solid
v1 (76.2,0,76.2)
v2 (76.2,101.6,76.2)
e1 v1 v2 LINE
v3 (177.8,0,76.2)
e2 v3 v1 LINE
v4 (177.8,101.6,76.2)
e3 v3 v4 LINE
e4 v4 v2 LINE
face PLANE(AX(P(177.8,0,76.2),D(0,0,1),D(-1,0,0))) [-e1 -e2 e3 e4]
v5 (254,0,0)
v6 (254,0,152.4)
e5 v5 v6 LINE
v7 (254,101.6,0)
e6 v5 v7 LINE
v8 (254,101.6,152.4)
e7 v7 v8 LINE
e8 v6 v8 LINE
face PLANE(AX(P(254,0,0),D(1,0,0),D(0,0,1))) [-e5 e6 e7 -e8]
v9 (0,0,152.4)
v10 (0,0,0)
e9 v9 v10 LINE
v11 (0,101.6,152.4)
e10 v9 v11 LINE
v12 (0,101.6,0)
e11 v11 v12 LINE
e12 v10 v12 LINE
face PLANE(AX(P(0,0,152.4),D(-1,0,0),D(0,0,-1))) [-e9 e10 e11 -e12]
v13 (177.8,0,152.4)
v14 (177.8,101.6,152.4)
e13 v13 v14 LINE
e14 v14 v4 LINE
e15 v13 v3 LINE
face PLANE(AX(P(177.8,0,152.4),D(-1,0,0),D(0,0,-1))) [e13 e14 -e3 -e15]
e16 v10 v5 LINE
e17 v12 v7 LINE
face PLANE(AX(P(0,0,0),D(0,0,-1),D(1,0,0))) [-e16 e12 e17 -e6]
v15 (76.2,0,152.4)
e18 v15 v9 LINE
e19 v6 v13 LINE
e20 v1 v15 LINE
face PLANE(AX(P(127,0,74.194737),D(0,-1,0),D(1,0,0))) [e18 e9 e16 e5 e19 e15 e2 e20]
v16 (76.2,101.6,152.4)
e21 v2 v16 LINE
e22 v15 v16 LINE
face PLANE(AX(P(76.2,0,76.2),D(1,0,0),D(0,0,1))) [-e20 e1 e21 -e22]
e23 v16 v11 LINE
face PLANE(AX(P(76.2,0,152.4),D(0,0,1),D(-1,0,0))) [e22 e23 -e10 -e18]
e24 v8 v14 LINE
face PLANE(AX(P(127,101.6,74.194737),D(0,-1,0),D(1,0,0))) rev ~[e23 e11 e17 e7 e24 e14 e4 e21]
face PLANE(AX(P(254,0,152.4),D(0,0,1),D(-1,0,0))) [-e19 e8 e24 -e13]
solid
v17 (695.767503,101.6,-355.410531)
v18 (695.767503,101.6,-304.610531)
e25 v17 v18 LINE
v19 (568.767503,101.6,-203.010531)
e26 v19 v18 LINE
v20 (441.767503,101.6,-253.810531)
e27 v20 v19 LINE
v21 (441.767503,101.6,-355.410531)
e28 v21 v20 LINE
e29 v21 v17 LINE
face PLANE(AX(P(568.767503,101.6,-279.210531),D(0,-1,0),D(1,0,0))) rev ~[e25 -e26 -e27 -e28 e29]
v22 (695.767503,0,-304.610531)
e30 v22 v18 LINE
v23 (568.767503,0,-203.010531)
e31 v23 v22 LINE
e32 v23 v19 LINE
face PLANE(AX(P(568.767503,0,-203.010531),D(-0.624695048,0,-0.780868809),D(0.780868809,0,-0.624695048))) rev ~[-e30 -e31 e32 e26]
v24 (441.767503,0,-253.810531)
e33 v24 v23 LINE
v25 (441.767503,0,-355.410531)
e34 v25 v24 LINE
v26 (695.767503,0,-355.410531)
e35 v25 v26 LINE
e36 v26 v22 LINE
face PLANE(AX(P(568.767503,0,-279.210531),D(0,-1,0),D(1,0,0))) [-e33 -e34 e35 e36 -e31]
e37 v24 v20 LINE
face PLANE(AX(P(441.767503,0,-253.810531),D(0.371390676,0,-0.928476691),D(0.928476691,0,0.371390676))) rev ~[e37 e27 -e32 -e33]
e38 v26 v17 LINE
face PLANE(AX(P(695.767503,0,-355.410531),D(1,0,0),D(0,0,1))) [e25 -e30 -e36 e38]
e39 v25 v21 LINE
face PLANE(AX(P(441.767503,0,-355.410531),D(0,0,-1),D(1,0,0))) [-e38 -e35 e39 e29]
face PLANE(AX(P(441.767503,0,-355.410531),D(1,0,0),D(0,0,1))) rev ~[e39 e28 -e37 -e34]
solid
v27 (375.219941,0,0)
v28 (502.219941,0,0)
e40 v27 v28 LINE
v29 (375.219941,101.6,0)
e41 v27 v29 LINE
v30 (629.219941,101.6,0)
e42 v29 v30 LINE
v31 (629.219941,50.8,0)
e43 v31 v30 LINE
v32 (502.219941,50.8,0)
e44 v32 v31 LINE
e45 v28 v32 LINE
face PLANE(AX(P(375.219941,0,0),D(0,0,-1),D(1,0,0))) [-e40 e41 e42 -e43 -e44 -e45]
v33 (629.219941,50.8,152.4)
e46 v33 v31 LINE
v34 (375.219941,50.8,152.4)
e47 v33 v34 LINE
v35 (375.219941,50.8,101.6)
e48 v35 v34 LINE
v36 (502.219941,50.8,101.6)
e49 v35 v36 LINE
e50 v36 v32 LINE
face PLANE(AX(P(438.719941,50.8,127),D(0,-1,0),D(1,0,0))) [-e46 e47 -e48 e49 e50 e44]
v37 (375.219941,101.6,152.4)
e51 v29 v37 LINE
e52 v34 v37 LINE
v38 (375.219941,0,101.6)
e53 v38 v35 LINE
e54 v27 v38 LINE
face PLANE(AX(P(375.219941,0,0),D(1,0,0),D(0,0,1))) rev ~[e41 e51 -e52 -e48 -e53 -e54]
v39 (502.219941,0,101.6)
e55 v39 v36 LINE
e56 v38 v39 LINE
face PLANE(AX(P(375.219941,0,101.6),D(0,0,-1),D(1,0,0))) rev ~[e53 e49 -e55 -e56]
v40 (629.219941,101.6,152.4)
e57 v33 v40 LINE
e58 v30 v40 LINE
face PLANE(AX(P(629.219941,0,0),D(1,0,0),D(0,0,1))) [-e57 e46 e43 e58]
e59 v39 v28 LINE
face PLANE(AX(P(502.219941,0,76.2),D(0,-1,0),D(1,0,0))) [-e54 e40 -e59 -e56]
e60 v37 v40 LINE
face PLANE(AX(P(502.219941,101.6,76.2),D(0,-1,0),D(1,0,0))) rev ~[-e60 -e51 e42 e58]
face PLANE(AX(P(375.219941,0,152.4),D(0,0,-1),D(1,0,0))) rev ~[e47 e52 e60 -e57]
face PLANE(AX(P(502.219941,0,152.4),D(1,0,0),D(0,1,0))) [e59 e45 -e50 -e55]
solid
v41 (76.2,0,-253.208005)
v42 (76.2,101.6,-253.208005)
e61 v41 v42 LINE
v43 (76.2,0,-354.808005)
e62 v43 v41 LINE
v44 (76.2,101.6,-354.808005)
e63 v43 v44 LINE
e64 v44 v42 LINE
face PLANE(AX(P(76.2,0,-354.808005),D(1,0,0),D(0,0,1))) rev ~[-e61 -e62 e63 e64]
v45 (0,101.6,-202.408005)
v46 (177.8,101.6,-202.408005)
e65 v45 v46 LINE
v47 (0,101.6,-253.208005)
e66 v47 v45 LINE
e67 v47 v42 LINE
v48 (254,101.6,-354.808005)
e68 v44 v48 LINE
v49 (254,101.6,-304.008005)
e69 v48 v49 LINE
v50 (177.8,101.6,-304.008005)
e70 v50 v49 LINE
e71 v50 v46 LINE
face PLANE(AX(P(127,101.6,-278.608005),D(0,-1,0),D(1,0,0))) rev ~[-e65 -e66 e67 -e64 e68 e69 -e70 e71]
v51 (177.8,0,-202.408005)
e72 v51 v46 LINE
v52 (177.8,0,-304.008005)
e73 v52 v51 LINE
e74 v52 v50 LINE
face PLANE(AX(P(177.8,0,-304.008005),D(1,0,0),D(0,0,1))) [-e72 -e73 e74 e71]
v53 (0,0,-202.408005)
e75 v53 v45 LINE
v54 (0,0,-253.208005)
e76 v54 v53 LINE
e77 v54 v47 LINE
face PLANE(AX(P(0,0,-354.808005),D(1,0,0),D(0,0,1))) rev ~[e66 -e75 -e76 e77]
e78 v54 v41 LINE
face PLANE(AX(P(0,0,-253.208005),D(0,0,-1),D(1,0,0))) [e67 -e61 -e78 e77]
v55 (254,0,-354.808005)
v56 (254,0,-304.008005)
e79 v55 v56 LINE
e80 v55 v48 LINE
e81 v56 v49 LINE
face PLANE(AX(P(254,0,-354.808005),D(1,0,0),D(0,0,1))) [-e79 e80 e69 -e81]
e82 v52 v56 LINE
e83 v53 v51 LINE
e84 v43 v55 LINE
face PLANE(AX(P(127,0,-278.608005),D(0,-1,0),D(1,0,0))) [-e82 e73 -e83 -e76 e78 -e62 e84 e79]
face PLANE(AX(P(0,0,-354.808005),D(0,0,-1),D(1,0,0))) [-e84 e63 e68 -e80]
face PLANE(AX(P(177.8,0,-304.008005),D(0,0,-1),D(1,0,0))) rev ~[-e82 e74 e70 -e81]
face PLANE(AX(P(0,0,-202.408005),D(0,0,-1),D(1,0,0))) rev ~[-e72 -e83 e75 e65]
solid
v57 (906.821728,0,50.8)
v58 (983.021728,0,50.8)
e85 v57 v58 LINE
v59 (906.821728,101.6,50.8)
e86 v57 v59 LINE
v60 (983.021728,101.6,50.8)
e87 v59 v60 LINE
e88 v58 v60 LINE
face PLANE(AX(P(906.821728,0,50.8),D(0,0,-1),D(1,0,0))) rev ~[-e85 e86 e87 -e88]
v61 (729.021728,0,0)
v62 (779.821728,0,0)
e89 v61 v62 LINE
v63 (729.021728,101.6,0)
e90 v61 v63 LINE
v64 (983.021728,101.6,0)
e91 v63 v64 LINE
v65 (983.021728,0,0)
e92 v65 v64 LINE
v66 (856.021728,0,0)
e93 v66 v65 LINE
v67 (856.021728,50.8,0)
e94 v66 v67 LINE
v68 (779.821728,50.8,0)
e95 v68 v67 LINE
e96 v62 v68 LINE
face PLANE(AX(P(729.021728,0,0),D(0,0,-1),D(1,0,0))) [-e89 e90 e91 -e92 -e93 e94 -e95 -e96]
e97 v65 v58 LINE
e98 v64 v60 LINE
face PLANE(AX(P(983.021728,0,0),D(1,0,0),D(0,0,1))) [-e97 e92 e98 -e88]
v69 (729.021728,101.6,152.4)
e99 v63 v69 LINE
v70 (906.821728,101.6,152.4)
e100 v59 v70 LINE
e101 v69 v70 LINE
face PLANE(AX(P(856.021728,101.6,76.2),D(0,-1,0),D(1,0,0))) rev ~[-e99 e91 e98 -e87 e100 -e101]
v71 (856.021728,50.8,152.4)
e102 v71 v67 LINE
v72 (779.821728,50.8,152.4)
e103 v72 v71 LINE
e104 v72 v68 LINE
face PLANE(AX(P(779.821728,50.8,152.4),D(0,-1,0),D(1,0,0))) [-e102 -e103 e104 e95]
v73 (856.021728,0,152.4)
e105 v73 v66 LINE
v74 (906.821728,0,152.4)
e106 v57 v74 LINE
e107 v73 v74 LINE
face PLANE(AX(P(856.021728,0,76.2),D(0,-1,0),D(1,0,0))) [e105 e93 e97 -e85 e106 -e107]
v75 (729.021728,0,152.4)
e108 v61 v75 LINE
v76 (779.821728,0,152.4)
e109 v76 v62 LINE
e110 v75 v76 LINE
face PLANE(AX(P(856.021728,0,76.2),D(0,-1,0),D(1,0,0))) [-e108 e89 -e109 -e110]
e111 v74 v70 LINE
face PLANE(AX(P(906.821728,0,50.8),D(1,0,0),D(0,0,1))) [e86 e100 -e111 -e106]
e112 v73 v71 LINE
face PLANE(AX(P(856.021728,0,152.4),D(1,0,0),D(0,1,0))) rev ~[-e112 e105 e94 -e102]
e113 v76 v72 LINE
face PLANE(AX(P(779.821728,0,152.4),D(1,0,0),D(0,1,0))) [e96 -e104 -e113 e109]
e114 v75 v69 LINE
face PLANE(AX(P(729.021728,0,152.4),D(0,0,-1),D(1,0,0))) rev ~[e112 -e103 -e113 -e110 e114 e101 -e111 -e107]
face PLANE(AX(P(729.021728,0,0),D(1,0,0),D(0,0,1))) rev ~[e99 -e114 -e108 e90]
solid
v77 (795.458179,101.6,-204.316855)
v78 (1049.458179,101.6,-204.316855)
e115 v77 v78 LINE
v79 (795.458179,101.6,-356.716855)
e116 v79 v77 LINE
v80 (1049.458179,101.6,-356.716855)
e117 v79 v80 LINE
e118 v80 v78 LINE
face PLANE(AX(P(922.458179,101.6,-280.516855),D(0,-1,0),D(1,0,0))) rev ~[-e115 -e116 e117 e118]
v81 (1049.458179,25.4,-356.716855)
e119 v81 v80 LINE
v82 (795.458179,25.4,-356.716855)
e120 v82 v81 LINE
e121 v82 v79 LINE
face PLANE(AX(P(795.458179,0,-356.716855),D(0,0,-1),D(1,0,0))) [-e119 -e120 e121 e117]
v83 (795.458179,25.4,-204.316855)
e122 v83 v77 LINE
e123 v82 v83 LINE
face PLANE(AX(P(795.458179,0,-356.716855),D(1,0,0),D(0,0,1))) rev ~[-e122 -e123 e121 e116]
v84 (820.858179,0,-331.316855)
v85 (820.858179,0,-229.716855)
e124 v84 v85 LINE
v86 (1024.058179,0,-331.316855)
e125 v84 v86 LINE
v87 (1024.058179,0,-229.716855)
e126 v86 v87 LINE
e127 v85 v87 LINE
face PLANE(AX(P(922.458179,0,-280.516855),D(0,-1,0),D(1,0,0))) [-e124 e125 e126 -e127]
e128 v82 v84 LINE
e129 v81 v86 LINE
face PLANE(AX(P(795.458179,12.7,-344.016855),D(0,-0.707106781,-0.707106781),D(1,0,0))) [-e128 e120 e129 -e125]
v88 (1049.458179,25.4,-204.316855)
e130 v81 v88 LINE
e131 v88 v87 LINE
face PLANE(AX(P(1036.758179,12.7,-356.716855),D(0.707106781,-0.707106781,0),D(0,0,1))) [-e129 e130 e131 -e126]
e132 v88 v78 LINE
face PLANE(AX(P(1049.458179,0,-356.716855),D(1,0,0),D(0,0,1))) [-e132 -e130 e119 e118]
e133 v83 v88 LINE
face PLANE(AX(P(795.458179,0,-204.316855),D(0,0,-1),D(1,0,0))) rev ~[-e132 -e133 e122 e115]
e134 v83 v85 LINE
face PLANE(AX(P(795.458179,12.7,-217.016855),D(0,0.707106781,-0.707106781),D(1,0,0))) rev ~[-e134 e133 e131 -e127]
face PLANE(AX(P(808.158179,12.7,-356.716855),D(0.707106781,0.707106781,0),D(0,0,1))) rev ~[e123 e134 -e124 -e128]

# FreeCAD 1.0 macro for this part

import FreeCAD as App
import Part
import Sketcher
Q = App.Units.Quantity


def edges_at(feature, points):
    """Names of the edges that pass closest to the given points."""
    edges = feature.Shape.Edges
    near = lambda p: min(range(len(edges)), key=lambda i: edges[i].distToShape(Part.Vertex(*p))[0])
    return sorted({f"Edge{near(p) + 1}" for p in points})

doc = App.newDocument("Part")
params = doc.addObject("Spreadsheet::Sheet", "Params")
for row, (alias, value) in enumerate([
    ("sketch1_width", "10 in"),
    ("sketch1_width2", "3 in"),
    ("sketch1_height", "6 in"),
    ("pad1_length", "4 in"),
    ("sketch2_width", "10 in"),
    ("sketch2_height", "6 in"),
    ("pad2_length", "4 in"),
    ("sketch3_width", "5 in"),
    ("sketch3_height", "2 in"),
    ("pocket1_length", "6 in"),
    ("sketch4_width", "5 in"),
    ("sketch4_height", "2 in"),
    ("pocket2_length", "2 in"),
    ("sketch5_width", "10 in"),
    ("sketch5_height", "6 in"),
    ("pad3_length", "4 in"),
    ("sketch6_width", "3 in"),
    ("sketch6_height", "4 in"),
    ("pocket3_length", "4 in"),
    ("sketch7_width", "3 in"),
    ("sketch7_height", "2 in"),
    ("pocket4_length", "6 in"),
    ("sketch8_width", "10 in"),
    ("sketch8_height", "6 in"),
    ("pad4_length", "4 in"),
    ("sketch9_width", "3 in"),
    ("sketch9_height", "4 in"),
    ("pocket5_length", "4 in"),
    ("sketch10_width", "3 in"),
    ("sketch10_height", "4 in"),
    ("pocket6_length", "4 in"),
    ("sketch11_width", "10 in"),
    ("sketch11_height", "6 in"),
    ("pad5_length", "4 in"),
    ("sketch12_width", "5 in"),
    ("sketch12_height", "2 in"),
    ("pocket7_length", "4 in"),
    ("sketch13_width", "5 in"),
    ("sketch13_height", "4 in"),
    ("pocket8_length", "4 in"),
    ("sketch14_width", "10 in"),
    ("sketch14_height", "6 in"),
    ("pad6_length", "4 in"),
    ("chamfer_size", "1 in"),
], start=1):
    params.set(f"A{row}", alias)
    params.set(f"B{row}", "=" + value)
    params.setAlias(f"B{row}", alias)

body = doc.addObject("PartDesign::Body", "Body")

sketch1 = body.newObject("Sketcher::SketchObject", "Sketch")
sketch1.AttachmentSupport = (doc.getObject("XZ_Plane"), [""])
sketch1.MapMode = "FlatFace"
sketch1.addGeometry(Part.LineSegment(App.Vector(0, 152, 0), App.Vector(0, 0, 0)), False)
sketch1.addGeometry(Part.LineSegment(App.Vector(0, 0, 0), App.Vector(254, 0, 0)), False)
sketch1.addGeometry(Part.LineSegment(App.Vector(254, 0, 0), App.Vector(254, 152, 0)), False)
sketch1.addGeometry(Part.LineSegment(App.Vector(254, 152, 0), App.Vector(178, 152, 0)), False)
sketch1.addGeometry(Part.LineSegment(App.Vector(178, 152, 0), App.Vector(178, 76, 0)), False)
sketch1.addGeometry(Part.LineSegment(App.Vector(178, 76, 0), App.Vector(76, 76, 0)), False)
sketch1.addGeometry(Part.LineSegment(App.Vector(76, 76, 0), App.Vector(76, 152, 0)), False)
sketch1.addGeometry(Part.LineSegment(App.Vector(76, 152, 0), App.Vector(0, 152, 0)), False)
sketch1.addConstraint(Sketcher.Constraint("Coincident", 0, 2, 1, 1))
sketch1.addConstraint(Sketcher.Constraint("Coincident", 1, 2, 2, 1))
sketch1.addConstraint(Sketcher.Constraint("Coincident", 2, 2, 3, 1))
sketch1.addConstraint(Sketcher.Constraint("Coincident", 3, 2, 4, 1))
sketch1.addConstraint(Sketcher.Constraint("Coincident", 4, 2, 5, 1))
sketch1.addConstraint(Sketcher.Constraint("Coincident", 5, 2, 6, 1))
sketch1.addConstraint(Sketcher.Constraint("Coincident", 6, 2, 7, 1))
sketch1.addConstraint(Sketcher.Constraint("Coincident", 7, 2, 0, 1))
sketch1.addConstraint(Sketcher.Constraint("Vertical", 0))
sketch1.addConstraint(Sketcher.Constraint("Horizontal", 1))
sketch1.addConstraint(Sketcher.Constraint("Vertical", 2))
sketch1.addConstraint(Sketcher.Constraint("Horizontal", 3))
sketch1.addConstraint(Sketcher.Constraint("Vertical", 4))
sketch1.addConstraint(Sketcher.Constraint("Horizontal", 5))
sketch1.addConstraint(Sketcher.Constraint("Vertical", 6))
sketch1.addConstraint(Sketcher.Constraint("Horizontal", 7))
sketch1.addConstraint(Sketcher.Constraint("Coincident", 0, 2, -1, 1))
sketch1.addConstraint(Sketcher.Constraint("Horizontal", 3, 2, 6, 2))
sketch1.addConstraint(Sketcher.Constraint("Equal", 3, 7))
sketch1.addConstraint(Sketcher.Constraint("Equal", 7, 4))
sketch1.addConstraint(Sketcher.Constraint("DistanceX", 1, 1, 1, 2, Q("10 in")))
sketch1.addConstraint(Sketcher.Constraint("DistanceX", 3, 2, 3, 1, Q("3 in")))
sketch1.addConstraint(Sketcher.Constraint("DistanceY", 0, 2, 0, 1, Q("6 in")))
sketch1.setExpression("Constraints[20]", "Params.sketch1_width")
sketch1.setExpression("Constraints[21]", "Params.sketch1_width2")
sketch1.setExpression("Constraints[22]", "Params.sketch1_height")
pad1 = body.newObject("PartDesign::Pad", "Pad")
pad1.Profile = sketch1
pad1.setExpression("Length", "Params.pad1_length")
pad1.Reversed = True
body2 = doc.addObject("PartDesign::Body", "Body001")

sketch2 = body2.newObject("Sketcher::SketchObject", "Sketch001")
sketch2.AttachmentSupport = (doc.getObject("XZ_Plane001"), [""])
sketch2.MapMode = "FlatFace"
sketch2.addGeometry(Part.LineSegment(App.Vector(375, 152, 0), App.Vector(375, 0, 0)), False)
sketch2.addGeometry(Part.LineSegment(App.Vector(375, 0, 0), App.Vector(629, 0, 0)), False)
sketch2.addGeometry(Part.LineSegment(App.Vector(629, 0, 0), App.Vector(629, 152, 0)), False)
sketch2.addGeometry(Part.LineSegment(App.Vector(629, 152, 0), App.Vector(375, 152, 0)), False)
sketch2.addConstraint(Sketcher.Constraint("Coincident", 0, 2, 1, 1))
sketch2.addConstraint(Sketcher.Constraint("Coincident", 1, 2, 2, 1))
sketch2.addConstraint(Sketcher.Constraint("Coincident", 2, 2, 3, 1))
sketch2.addConstraint(Sketcher.Constraint("Coincident", 3, 2, 0, 1))
sketch2.addConstraint(Sketcher.Constraint("Vertical", 0))
sketch2.addConstraint(Sketcher.Constraint("Horizontal", 1))
sketch2.addConstraint(Sketcher.Constraint("Vertical", 2))
sketch2.addConstraint(Sketcher.Constraint("Horizontal", 3))
sketch2.addConstraint(Sketcher.Constraint("PointOnObject", 0, 2, -1))
sketch2.addConstraint(Sketcher.Constraint("DistanceX", 1, 1, 1, 2, Q("10 in")))
sketch2.addConstraint(Sketcher.Constraint("DistanceY", 0, 2, 0, 1, Q("6 in")))
sketch2.addConstraint(Sketcher.Constraint("DistanceX", -1, 1, 0, 2, Q("375.219941 mm")))
sketch2.setExpression("Constraints[9]", "Params.sketch2_width")
sketch2.setExpression("Constraints[10]", "Params.sketch2_height")
pad2 = body2.newObject("PartDesign::Pad", "Pad001")
pad2.Profile = sketch2
pad2.setExpression("Length", "Params.pad2_length")
pad2.Reversed = True

sketch3 = body2.newObject("Sketcher::SketchObject", "Sketch002")
sketch3.AttachmentSupport = (doc.getObject("XY_Plane001"), [""])
sketch3.MapMode = "FlatFace"
sketch3.AttachmentOffset = App.Placement(App.Vector(0, 0, 6 * 25.4), App.Rotation())
sketch3.addGeometry(Part.LineSegment(App.Vector(502, 51, 0), App.Vector(502, 0, 0)), False)
sketch3.addGeometry(Part.LineSegment(App.Vector(502, 0, 0), App.Vector(629, 0, 0)), False)
sketch3.addGeometry(Part.LineSegment(App.Vector(629, 0, 0), App.Vector(629, 51, 0)), False)
sketch3.addGeometry(Part.LineSegment(App.Vector(629, 51, 0), App.Vector(502, 51, 0)), False)
sketch3.addConstraint(Sketcher.Constraint("Coincident", 0, 2, 1, 1))
sketch3.addConstraint(Sketcher.Constraint("Coincident", 1, 2, 2, 1))
sketch3.addConstraint(Sketcher.Constraint("Coincident", 2, 2, 3, 1))
sketch3.addConstraint(Sketcher.Constraint("Coincident", 3, 2, 0, 1))
sketch3.addConstraint(Sketcher.Constraint("Vertical", 0))
sketch3.addConstraint(Sketcher.Constraint("Horizontal", 1))
sketch3.addConstraint(Sketcher.Constraint("Vertical", 2))
sketch3.addConstraint(Sketcher.Constraint("Horizontal", 3))
sketch3.addConstraint(Sketcher.Constraint("PointOnObject", 0, 2, -1))
sketch3.addConstraint(Sketcher.Constraint("DistanceX", 1, 1, 1, 2, Q("5 in")))
sketch3.addConstraint(Sketcher.Constraint("DistanceY", 0, 2, 0, 1, Q("2 in")))
sketch3.addConstraint(Sketcher.Constraint("DistanceX", -1, 1, 0, 2, Q("502.219941 mm")))
sketch3.setExpression("Constraints[9]", "Params.sketch3_width")
sketch3.setExpression("Constraints[10]", "Params.sketch3_height")
pocket1 = body2.newObject("PartDesign::Pocket", "Pocket")
pocket1.Profile = sketch3
pocket1.setExpression("Length", "Params.pocket1_length")

sketch4 = body2.newObject("Sketcher::SketchObject", "Sketch003")
sketch4.AttachmentSupport = (doc.getObject("XZ_Plane001"), [""])
sketch4.MapMode = "FlatFace"
sketch4.addGeometry(Part.LineSegment(App.Vector(375, 152, 0), App.Vector(375, 102, 0)), False)
sketch4.addGeometry(Part.LineSegment(App.Vector(375, 102, 0), App.Vector(502, 102, 0)), False)
sketch4.addGeometry(Part.LineSegment(App.Vector(502, 102, 0), App.Vector(502, 152, 0)), False)
sketch4.addGeometry(Part.LineSegment(App.Vector(502, 152, 0), App.Vector(375, 152, 0)), False)
sketch4.addConstraint(Sketcher.Constraint("Coincident", 0, 2, 1, 1))
sketch4.addConstraint(Sketcher.Constraint("Coincident", 1, 2, 2, 1))
sketch4.addConstraint(Sketcher.Constraint("Coincident", 2, 2, 3, 1))
sketch4.addConstraint(Sketcher.Constraint("Coincident", 3, 2, 0, 1))
sketch4.addConstraint(Sketcher.Constraint("Vertical", 0))
sketch4.addConstraint(Sketcher.Constraint("Horizontal", 1))
sketch4.addConstraint(Sketcher.Constraint("Vertical", 2))
sketch4.addConstraint(Sketcher.Constraint("Horizontal", 3))
sketch4.addConstraint(Sketcher.Constraint("DistanceX", 1, 1, 1, 2, Q("5 in")))
sketch4.addConstraint(Sketcher.Constraint("DistanceY", 0, 2, 0, 1, Q("2 in")))
sketch4.addConstraint(Sketcher.Constraint("DistanceY", -1, 1, 0, 2, Q("4 in")))
sketch4.addConstraint(Sketcher.Constraint("DistanceX", -1, 1, 0, 2, Q("375.219941 mm")))
sketch4.setExpression("Constraints[8]", "Params.sketch4_width")
sketch4.setExpression("Constraints[9]", "Params.sketch4_height")
pocket2 = body2.newObject("PartDesign::Pocket", "Pocket001")
pocket2.Profile = sketch4
pocket2.setExpression("Length", "Params.pocket2_length")
body3 = doc.addObject("PartDesign::Body", "Body002")

sketch5 = body3.newObject("Sketcher::SketchObject", "Sketch004")
sketch5.AttachmentSupport = (doc.getObject("XZ_Plane002"), [""])
sketch5.MapMode = "FlatFace"
sketch5.addGeometry(Part.LineSegment(App.Vector(729, 152, 0), App.Vector(729, 0, 0)), False)
sketch5.addGeometry(Part.LineSegment(App.Vector(729, 0, 0), App.Vector(983, 0, 0)), False)
sketch5.addGeometry(Part.LineSegment(App.Vector(983, 0, 0), App.Vector(983, 152, 0)), False)
sketch5.addGeometry(Part.LineSegment(App.Vector(983, 152, 0), App.Vector(729, 152, 0)), False)
sketch5.addConstraint(Sketcher.Constraint("Coincident", 0, 2, 1, 1))
sketch5.addConstraint(Sketcher.Constraint("Coincident", 1, 2, 2, 1))
sketch5.addConstraint(Sketcher.Constraint("Coincident", 2, 2, 3, 1))
sketch5.addConstraint(Sketcher.Constraint("Coincident", 3, 2, 0, 1))
sketch5.addConstraint(Sketcher.Constraint("Vertical", 0))
sketch5.addConstraint(Sketcher.Constraint("Horizontal", 1))
sketch5.addConstraint(Sketcher.Constraint("Vertical", 2))
sketch5.addConstraint(Sketcher.Constraint("Horizontal", 3))
sketch5.addConstraint(Sketcher.Constraint("PointOnObject", 0, 2, -1))
sketch5.addConstraint(Sketcher.Constraint("DistanceX", 1, 1, 1, 2, Q("10 in")))
sketch5.addConstraint(Sketcher.Constraint("DistanceY", 0, 2, 0, 1, Q("6 in")))
sketch5.addConstraint(Sketcher.Constraint("DistanceX", -1, 1, 0, 2, Q("729.021728 mm")))
sketch5.setExpression("Constraints[9]", "Params.sketch5_width")
sketch5.setExpression("Constraints[10]", "Params.sketch5_height")
pad3 = body3.newObject("PartDesign::Pad", "Pad002")
pad3.Profile = sketch5
pad3.setExpression("Length", "Params.pad3_length")
pad3.Reversed = True

sketch6 = body3.newObject("Sketcher::SketchObject", "Sketch005")
sketch6.AttachmentSupport = (doc.getObject("XZ_Plane002"), [""])
sketch6.MapMode = "FlatFace"
sketch6.addGeometry(Part.LineSegment(App.Vector(907, 152, 0), App.Vector(907, 51, 0)), False)
sketch6.addGeometry(Part.LineSegment(App.Vector(907, 51, 0), App.Vector(983, 51, 0)), False)
sketch6.addGeometry(Part.LineSegment(App.Vector(983, 51, 0), App.Vector(983, 152, 0)), False)
sketch6.addGeometry(Part.LineSegment(App.Vector(983, 152, 0), App.Vector(907, 152, 0)), False)
sketch6.addConstraint(Sketcher.Constraint("Coincident", 0, 2, 1, 1))
sketch6.addConstraint(Sketcher.Constraint("Coincident", 1, 2, 2, 1))
sketch6.addConstraint(Sketcher.Constraint("Coincident", 2, 2, 3, 1))
sketch6.addConstraint(Sketcher.Constraint("Coincident", 3, 2, 0, 1))
sketch6.addConstraint(Sketcher.Constraint("Vertical", 0))
sketch6.addConstraint(Sketcher.Constraint("Horizontal", 1))
sketch6.addConstraint(Sketcher.Constraint("Vertical", 2))
sketch6.addConstraint(Sketcher.Constraint("Horizontal", 3))
sketch6.addConstraint(Sketcher.Constraint("DistanceX", 1, 1, 1, 2, Q("3 in")))
sketch6.addConstraint(Sketcher.Constraint("DistanceY", 0, 2, 0, 1, Q("4 in")))
sketch6.addConstraint(Sketcher.Constraint("DistanceY", -1, 1, 0, 2, Q("2 in")))
sketch6.addConstraint(Sketcher.Constraint("DistanceX", -1, 1, 0, 2, Q("906.821728 mm")))
sketch6.setExpression("Constraints[8]", "Params.sketch6_width")
sketch6.setExpression("Constraints[9]", "Params.sketch6_height")
pocket3 = body3.newObject("PartDesign::Pocket", "Pocket002")
pocket3.Profile = sketch6
pocket3.setExpression("Length", "Params.pocket3_length")

sketch7 = body3.newObject("Sketcher::SketchObject", "Sketch006")
sketch7.AttachmentSupport = (doc.getObject("XY_Plane002"), [""])
sketch7.MapMode = "FlatFace"
sketch7.AttachmentOffset = App.Placement(App.Vector(0, 0, 6 * 25.4), App.Rotation())
sketch7.addGeometry(Part.LineSegment(App.Vector(780, 51, 0), App.Vector(780, 0, 0)), False)
sketch7.addGeometry(Part.LineSegment(App.Vector(780, 0, 0), App.Vector(856, 0, 0)), False)
sketch7.addGeometry(Part.LineSegment(App.Vector(856, 0, 0), App.Vector(856, 51, 0)), False)
sketch7.addGeometry(Part.LineSegment(App.Vector(856, 51, 0), App.Vector(780, 51, 0)), False)
sketch7.addConstraint(Sketcher.Constraint("Coincident", 0, 2, 1, 1))
sketch7.addConstraint(Sketcher.Constraint("Coincident", 1, 2, 2, 1))
sketch7.addConstraint(Sketcher.Constraint("Coincident", 2, 2, 3, 1))
sketch7.addConstraint(Sketcher.Constraint("Coincident", 3, 2, 0, 1))
sketch7.addConstraint(Sketcher.Constraint("Vertical", 0))
sketch7.addConstraint(Sketcher.Constraint("Horizontal", 1))
sketch7.addConstraint(Sketcher.Constraint("Vertical", 2))
sketch7.addConstraint(Sketcher.Constraint("Horizontal", 3))
sketch7.addConstraint(Sketcher.Constraint("PointOnObject", 0, 2, -1))
sketch7.addConstraint(Sketcher.Constraint("DistanceX", 1, 1, 1, 2, Q("3 in")))
sketch7.addConstraint(Sketcher.Constraint("DistanceY", 0, 2, 0, 1, Q("2 in")))
sketch7.addConstraint(Sketcher.Constraint("DistanceX", -1, 1, 0, 2, Q("779.821728 mm")))
sketch7.setExpression("Constraints[9]", "Params.sketch7_width")
sketch7.setExpression("Constraints[10]", "Params.sketch7_height")
pocket4 = body3.newObject("PartDesign::Pocket", "Pocket003")
pocket4.Profile = sketch7
pocket4.setExpression("Length", "Params.pocket4_length")
body4 = doc.addObject("PartDesign::Body", "Body003")

sketch8 = body4.newObject("Sketcher::SketchObject", "Sketch007")
sketch8.AttachmentSupport = (doc.getObject("XZ_Plane003"), [""])
sketch8.MapMode = "FlatFace"
sketch8.addGeometry(Part.LineSegment(App.Vector(0, -202, 0), App.Vector(0, -355, 0)), False)
sketch8.addGeometry(Part.LineSegment(App.Vector(0, -355, 0), App.Vector(254, -355, 0)), False)
sketch8.addGeometry(Part.LineSegment(App.Vector(254, -355, 0), App.Vector(254, -202, 0)), False)
sketch8.addGeometry(Part.LineSegment(App.Vector(254, -202, 0), App.Vector(0, -202, 0)), False)
sketch8.addConstraint(Sketcher.Constraint("Coincident", 0, 2, 1, 1))
sketch8.addConstraint(Sketcher.Constraint("Coincident", 1, 2, 2, 1))
sketch8.addConstraint(Sketcher.Constraint("Coincident", 2, 2, 3, 1))
sketch8.addConstraint(Sketcher.Constraint("Coincident", 3, 2, 0, 1))
sketch8.addConstraint(Sketcher.Constraint("Vertical", 0))
sketch8.addConstraint(Sketcher.Constraint("Horizontal", 1))
sketch8.addConstraint(Sketcher.Constraint("Vertical", 2))
sketch8.addConstraint(Sketcher.Constraint("Horizontal", 3))
sketch8.addConstraint(Sketcher.Constraint("PointOnObject", 0, 2, -2))
sketch8.addConstraint(Sketcher.Constraint("DistanceX", 1, 1, 1, 2, Q("10 in")))
sketch8.addConstraint(Sketcher.Constraint("DistanceY", 0, 2, 0, 1, Q("6 in")))
sketch8.addConstraint(Sketcher.Constraint("DistanceY", 0, 2, -1, 1, Q("354.808005 mm")))
sketch8.setExpression("Constraints[9]", "Params.sketch8_width")
sketch8.setExpression("Constraints[10]", "Params.sketch8_height")
pad4 = body4.newObject("PartDesign::Pad", "Pad003")
pad4.Profile = sketch8
pad4.setExpression("Length", "Params.pad4_length")
pad4.Reversed = True

sketch9 = body4.newObject("Sketcher::SketchObject", "Sketch008")
sketch9.AttachmentSupport = (doc.getObject("XZ_Plane003"), [""])
sketch9.MapMode = "FlatFace"
sketch9.addGeometry(Part.LineSegment(App.Vector(0, -253, 0), App.Vector(0, -355, 0)), False)
sketch9.addGeometry(Part.LineSegment(App.Vector(0, -355, 0), App.Vector(76, -355, 0)), False)
sketch9.addGeometry(Part.LineSegment(App.Vector(76, -355, 0), App.Vector(76, -253, 0)), False)
sketch9.addGeometry(Part.LineSegment(App.Vector(76, -253, 0), App.Vector(0, -253, 0)), False)
sketch9.addConstraint(Sketcher.Constraint("Coincident", 0, 2, 1, 1))
sketch9.addConstraint(Sketcher.Constraint("Coincident", 1, 2, 2, 1))
sketch9.addConstraint(Sketcher.Constraint("Coincident", 2, 2, 3, 1))
sketch9.addConstraint(Sketcher.Constraint("Coincident", 3, 2, 0, 1))
sketch9.addConstraint(Sketcher.Constraint("Vertical", 0))
sketch9.addConstraint(Sketcher.Constraint("Horizontal", 1))
sketch9.addConstraint(Sketcher.Constraint("Vertical", 2))
sketch9.addConstraint(Sketcher.Constraint("Horizontal", 3))
sketch9.addConstraint(Sketcher.Constraint("PointOnObject", 0, 2, -2))
sketch9.addConstraint(Sketcher.Constraint("DistanceX", 1, 1, 1, 2, Q("3 in")))
sketch9.addConstraint(Sketcher.Constraint("DistanceY", 0, 2, 0, 1, Q("4 in")))
sketch9.addConstraint(Sketcher.Constraint("DistanceY", 0, 2, -1, 1, Q("354.808005 mm")))
sketch9.setExpression("Constraints[9]", "Params.sketch9_width")
sketch9.setExpression("Constraints[10]", "Params.sketch9_height")
pocket5 = body4.newObject("PartDesign::Pocket", "Pocket004")
pocket5.Profile = sketch9
pocket5.setExpression("Length", "Params.pocket5_length")

sketch10 = body4.newObject("Sketcher::SketchObject", "Sketch009")
sketch10.AttachmentSupport = (doc.getObject("XZ_Plane003"), [""])
sketch10.MapMode = "FlatFace"
sketch10.addGeometry(Part.LineSegment(App.Vector(178, -202, 0), App.Vector(178, -304, 0)), False)
sketch10.addGeometry(Part.LineSegment(App.Vector(178, -304, 0), App.Vector(254, -304, 0)), False)
sketch10.addGeometry(Part.LineSegment(App.Vector(254, -304, 0), App.Vector(254, -202, 0)), False)
sketch10.addGeometry(Part.LineSegment(App.Vector(254, -202, 0), App.Vector(178, -202, 0)), False)
sketch10.addConstraint(Sketcher.Constraint("Coincident", 0, 2, 1, 1))
sketch10.addConstraint(Sketcher.Constraint("Coincident", 1, 2, 2, 1))
sketch10.addConstraint(Sketcher.Constraint("Coincident", 2, 2, 3, 1))
sketch10.addConstraint(Sketcher.Constraint("Coincident", 3, 2, 0, 1))
sketch10.addConstraint(Sketcher.Constraint("Vertical", 0))
sketch10.addConstraint(Sketcher.Constraint("Horizontal", 1))
sketch10.addConstraint(Sketcher.Constraint("Vertical", 2))
sketch10.addConstraint(Sketcher.Constraint("Horizontal", 3))
sketch10.addConstraint(Sketcher.Constraint("DistanceX", 1, 1, 1, 2, Q("3 in")))
sketch10.addConstraint(Sketcher.Constraint("DistanceY", 0, 2, 0, 1, Q("4 in")))
sketch10.addConstraint(Sketcher.Constraint("DistanceX", -1, 1, 0, 2, Q("7 in")))
sketch10.addConstraint(Sketcher.Constraint("DistanceY", 0, 2, -1, 1, Q("304.008005 mm")))
sketch10.setExpression("Constraints[8]", "Params.sketch10_width")
sketch10.setExpression("Constraints[9]", "Params.sketch10_height")
pocket6 = body4.newObject("PartDesign::Pocket", "Pocket005")
pocket6.Profile = sketch10
pocket6.setExpression("Length", "Params.pocket6_length")
body5 = doc.addObject("PartDesign::Body", "Body004")

sketch11 = body5.newObject("Sketcher::SketchObject", "Sketch010")
sketch11.AttachmentSupport = (doc.getObject("XZ_Plane004"), [""])
sketch11.MapMode = "FlatFace"
sketch11.addGeometry(Part.LineSegment(App.Vector(442, -203, 0), App.Vector(442, -355, 0)), False)
sketch11.addGeometry(Part.LineSegment(App.Vector(442, -355, 0), App.Vector(696, -355, 0)), False)
sketch11.addGeometry(Part.LineSegment(App.Vector(696, -355, 0), App.Vector(696, -203, 0)), False)
sketch11.addGeometry(Part.LineSegment(App.Vector(696, -203, 0), App.Vector(442, -203, 0)), False)
sketch11.addConstraint(Sketcher.Constraint("Coincident", 0, 2, 1, 1))
sketch11.addConstraint(Sketcher.Constraint("Coincident", 1, 2, 2, 1))
sketch11.addConstraint(Sketcher.Constraint("Coincident", 2, 2, 3, 1))
sketch11.addConstraint(Sketcher.Constraint("Coincident", 3, 2, 0, 1))
sketch11.addConstraint(Sketcher.Constraint("Vertical", 0))
sketch11.addConstraint(Sketcher.Constraint("Horizontal", 1))
sketch11.addConstraint(Sketcher.Constraint("Vertical", 2))
sketch11.addConstraint(Sketcher.Constraint("Horizontal", 3))
sketch11.addConstraint(Sketcher.Constraint("DistanceX", 1, 1, 1, 2, Q("10 in")))
sketch11.addConstraint(Sketcher.Constraint("DistanceY", 0, 2, 0, 1, Q("6 in")))
sketch11.addConstraint(Sketcher.Constraint("DistanceY", 0, 2, -1, 1, Q("355.410531 mm")))
sketch11.addConstraint(Sketcher.Constraint("DistanceX", -1, 1, 0, 2, Q("441.767503 mm")))
sketch11.setExpression("Constraints[8]", "Params.sketch11_width")
sketch11.setExpression("Constraints[9]", "Params.sketch11_height")
pad5 = body5.newObject("PartDesign::Pad", "Pad004")
pad5.Profile = sketch11
pad5.setExpression("Length", "Params.pad5_length")
pad5.Reversed = True

sketch12 = body5.newObject("Sketcher::SketchObject", "Sketch011")
sketch12.AttachmentSupport = (doc.getObject("XZ_Plane004"), [""])
sketch12.MapMode = "FlatFace"
sketch12.addGeometry(Part.LineSegment(App.Vector(442, -203, 0), App.Vector(442, -254, 0)), False)
sketch12.addGeometry(Part.LineSegment(App.Vector(442, -254, 0), App.Vector(569, -203, 0)), False)
sketch12.addGeometry(Part.LineSegment(App.Vector(569, -203, 0), App.Vector(442, -203, 0)), False)
sketch12.addConstraint(Sketcher.Constraint("Coincident", 0, 2, 1, 1))
sketch12.addConstraint(Sketcher.Constraint("Coincident", 1, 2, 2, 1))
sketch12.addConstraint(Sketcher.Constraint("Coincident", 2, 2, 0, 1))
sketch12.addConstraint(Sketcher.Constraint("Vertical", 0))
sketch12.addConstraint(Sketcher.Constraint("Horizontal", 2))
sketch12.addConstraint(Sketcher.Constraint("DistanceX", 2, 2, 2, 1, Q("5 in")))
sketch12.addConstraint(Sketcher.Constraint("DistanceY", 0, 2, 0, 1, Q("2 in")))
sketch12.addConstraint(Sketcher.Constraint("DistanceY", 0, 2, -1, 1, Q("253.810531 mm")))
sketch12.addConstraint(Sketcher.Constraint("DistanceX", -1, 1, 0, 2, Q("441.767503 mm")))
sketch12.setExpression("Constraints[5]", "Params.sketch12_width")
sketch12.setExpression("Constraints[6]", "Params.sketch12_height")
pocket7 = body5.newObject("PartDesign::Pocket", "Pocket006")
pocket7.Profile = sketch12
pocket7.setExpression("Length", "Params.pocket7_length")

sketch13 = body5.newObject("Sketcher::SketchObject", "Sketch012")
sketch13.AttachmentSupport = (doc.getObject("XZ_Plane004"), [""])
sketch13.MapMode = "FlatFace"
sketch13.addGeometry(Part.LineSegment(App.Vector(569, -203, 0), App.Vector(696, -305, 0)), False)
sketch13.addGeometry(Part.LineSegment(App.Vector(696, -305, 0), App.Vector(696, -203, 0)), False)
sketch13.addGeometry(Part.LineSegment(App.Vector(696, -203, 0), App.Vector(569, -203, 0)), False)
sketch13.addConstraint(Sketcher.Constraint("Coincident", 0, 2, 1, 1))
sketch13.addConstraint(Sketcher.Constraint("Coincident", 1, 2, 2, 1))
sketch13.addConstraint(Sketcher.Constraint("Coincident", 2, 2, 0, 1))
sketch13.addConstraint(Sketcher.Constraint("Vertical", 1))
sketch13.addConstraint(Sketcher.Constraint("Horizontal", 2))
sketch13.addConstraint(Sketcher.Constraint("DistanceX", 2, 2, 2, 1, Q("5 in")))
sketch13.addConstraint(Sketcher.Constraint("DistanceY", 1, 1, 1, 2, Q("4 in")))
sketch13.addConstraint(Sketcher.Constraint("DistanceY", 0, 2, -1, 1, Q("304.610531 mm")))
sketch13.addConstraint(Sketcher.Constraint("DistanceX", -1, 1, 0, 2, Q("695.767503 mm")))
sketch13.setExpression("Constraints[5]", "Params.sketch13_width")
sketch13.setExpression("Constraints[6]", "Params.sketch13_height")
pocket8 = body5.newObject("PartDesign::Pocket", "Pocket007")
pocket8.Profile = sketch13
pocket8.setExpression("Length", "Params.pocket8_length")
body6 = doc.addObject("PartDesign::Body", "Body005")

sketch14 = body6.newObject("Sketcher::SketchObject", "Sketch013")
sketch14.AttachmentSupport = (doc.getObject("XZ_Plane005"), [""])
sketch14.MapMode = "FlatFace"
sketch14.addGeometry(Part.LineSegment(App.Vector(795.458179, -204.316855, 0), App.Vector(795.458179, -356.716855, 0)), False)
sketch14.addGeometry(Part.LineSegment(App.Vector(795.458179, -356.716855, 0), App.Vector(1049.458179, -356.716855, 0)), False)
sketch14.addGeometry(Part.LineSegment(App.Vector(1049.458179, -356.716855, 0), App.Vector(1049.458179, -204.316855, 0)), False)
sketch14.addGeometry(Part.LineSegment(App.Vector(1049.458179, -204.316855, 0), App.Vector(795.458179, -204.316855, 0)), False)
sketch14.addConstraint(Sketcher.Constraint("Coincident", 0, 2, 1, 1))
sketch14.addConstraint(Sketcher.Constraint("Coincident", 1, 2, 2, 1))
sketch14.addConstraint(Sketcher.Constraint("Coincident", 2, 2, 3, 1))
sketch14.addConstraint(Sketcher.Constraint("Coincident", 3, 2, 0, 1))
sketch14.addConstraint(Sketcher.Constraint("Vertical", 0))
sketch14.addConstraint(Sketcher.Constraint("Horizontal", 1))
sketch14.addConstraint(Sketcher.Constraint("Vertical", 2))
sketch14.addConstraint(Sketcher.Constraint("Horizontal", 3))
sketch14.addConstraint(Sketcher.Constraint("DistanceX", 1, 1, 1, 2, Q("10 in")))
sketch14.addConstraint(Sketcher.Constraint("DistanceY", 0, 2, 0, 1, Q("6 in")))
sketch14.addConstraint(Sketcher.Constraint("DistanceX", -1, 1, 0, 2, Q("795.458179 mm")))
sketch14.addConstraint(Sketcher.Constraint("DistanceY", 0, 2, -1, 1, Q("356.716855 mm")))
sketch14.setExpression("Constraints[8]", "Params.sketch14_width")
sketch14.setExpression("Constraints[9]", "Params.sketch14_height")
pad6 = body6.newObject("PartDesign::Pad", "Pad005")
pad6.Profile = sketch14
pad6.setExpression("Length", "Params.pad6_length")
pad6.Reversed = True
doc.recompute()

chamfer = body6.newObject("PartDesign::Chamfer", "Chamfer")
chamfer.Base = (pad6, edges_at(pad6, [
    (922.458, 0, -204.317),
    (1049.458, 0, -280.517),
    (922.458, 0, -356.717),
    (795.458, 0, -280.517),
]))
chamfer.setExpression("Size", "Params.chamfer_size")

doc.recompute()
